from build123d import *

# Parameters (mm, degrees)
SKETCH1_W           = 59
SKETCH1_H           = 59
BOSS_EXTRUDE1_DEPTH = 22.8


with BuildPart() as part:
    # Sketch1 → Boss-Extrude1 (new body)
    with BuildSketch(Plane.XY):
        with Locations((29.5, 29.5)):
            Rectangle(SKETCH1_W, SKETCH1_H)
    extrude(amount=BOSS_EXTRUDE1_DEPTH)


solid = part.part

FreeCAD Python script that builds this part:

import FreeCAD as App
import Part
import Sketcher


def add_polygon(sketch, points):
    """Adds a closed chain of lines whose ends are joined by coincident constraints."""
    first, n = sketch.GeometryCount, len(points)
    for a, b in zip(points, points[1:] + points[:1]):
        sketch.addGeometry(Part.LineSegment(App.Vector(*a, 0), App.Vector(*b, 0)), False)
    for i in range(n):
        sketch.addConstraint(Sketcher.Constraint("Coincident", first + i, 2, first + (i + 1) % n, 1))

doc = App.newDocument("Part")
body = doc.addObject("PartDesign::Body", "Body")

sketch1 = body.newObject("Sketcher::SketchObject", "Sketch")
sketch1.AttachmentSupport = (doc.getObject("XY_Plane"), [""])
sketch1.MapMode = "FlatFace"
add_polygon(sketch1, [(0, 59), (0, 0), (59, 0), (59, 59)])
sketch1.addConstraint([
    Sketcher.Constraint("Vertical", 0),
    Sketcher.Constraint("Horizontal", 1),
    Sketcher.Constraint("Vertical", 2),
    Sketcher.Constraint("Horizontal", 3),
    Sketcher.Constraint("Coincident", 0, 2, -1, 1),
    Sketcher.Constraint("Equal", 3, 0),
    Sketcher.Constraint("DistanceX", 1, 1, 1, 2, 59.0),
])
pad1 = body.newObject("PartDesign::Pad", "Pad")
pad1.Profile = sketch1
pad1.Length = 22.8

doc.recompute()
